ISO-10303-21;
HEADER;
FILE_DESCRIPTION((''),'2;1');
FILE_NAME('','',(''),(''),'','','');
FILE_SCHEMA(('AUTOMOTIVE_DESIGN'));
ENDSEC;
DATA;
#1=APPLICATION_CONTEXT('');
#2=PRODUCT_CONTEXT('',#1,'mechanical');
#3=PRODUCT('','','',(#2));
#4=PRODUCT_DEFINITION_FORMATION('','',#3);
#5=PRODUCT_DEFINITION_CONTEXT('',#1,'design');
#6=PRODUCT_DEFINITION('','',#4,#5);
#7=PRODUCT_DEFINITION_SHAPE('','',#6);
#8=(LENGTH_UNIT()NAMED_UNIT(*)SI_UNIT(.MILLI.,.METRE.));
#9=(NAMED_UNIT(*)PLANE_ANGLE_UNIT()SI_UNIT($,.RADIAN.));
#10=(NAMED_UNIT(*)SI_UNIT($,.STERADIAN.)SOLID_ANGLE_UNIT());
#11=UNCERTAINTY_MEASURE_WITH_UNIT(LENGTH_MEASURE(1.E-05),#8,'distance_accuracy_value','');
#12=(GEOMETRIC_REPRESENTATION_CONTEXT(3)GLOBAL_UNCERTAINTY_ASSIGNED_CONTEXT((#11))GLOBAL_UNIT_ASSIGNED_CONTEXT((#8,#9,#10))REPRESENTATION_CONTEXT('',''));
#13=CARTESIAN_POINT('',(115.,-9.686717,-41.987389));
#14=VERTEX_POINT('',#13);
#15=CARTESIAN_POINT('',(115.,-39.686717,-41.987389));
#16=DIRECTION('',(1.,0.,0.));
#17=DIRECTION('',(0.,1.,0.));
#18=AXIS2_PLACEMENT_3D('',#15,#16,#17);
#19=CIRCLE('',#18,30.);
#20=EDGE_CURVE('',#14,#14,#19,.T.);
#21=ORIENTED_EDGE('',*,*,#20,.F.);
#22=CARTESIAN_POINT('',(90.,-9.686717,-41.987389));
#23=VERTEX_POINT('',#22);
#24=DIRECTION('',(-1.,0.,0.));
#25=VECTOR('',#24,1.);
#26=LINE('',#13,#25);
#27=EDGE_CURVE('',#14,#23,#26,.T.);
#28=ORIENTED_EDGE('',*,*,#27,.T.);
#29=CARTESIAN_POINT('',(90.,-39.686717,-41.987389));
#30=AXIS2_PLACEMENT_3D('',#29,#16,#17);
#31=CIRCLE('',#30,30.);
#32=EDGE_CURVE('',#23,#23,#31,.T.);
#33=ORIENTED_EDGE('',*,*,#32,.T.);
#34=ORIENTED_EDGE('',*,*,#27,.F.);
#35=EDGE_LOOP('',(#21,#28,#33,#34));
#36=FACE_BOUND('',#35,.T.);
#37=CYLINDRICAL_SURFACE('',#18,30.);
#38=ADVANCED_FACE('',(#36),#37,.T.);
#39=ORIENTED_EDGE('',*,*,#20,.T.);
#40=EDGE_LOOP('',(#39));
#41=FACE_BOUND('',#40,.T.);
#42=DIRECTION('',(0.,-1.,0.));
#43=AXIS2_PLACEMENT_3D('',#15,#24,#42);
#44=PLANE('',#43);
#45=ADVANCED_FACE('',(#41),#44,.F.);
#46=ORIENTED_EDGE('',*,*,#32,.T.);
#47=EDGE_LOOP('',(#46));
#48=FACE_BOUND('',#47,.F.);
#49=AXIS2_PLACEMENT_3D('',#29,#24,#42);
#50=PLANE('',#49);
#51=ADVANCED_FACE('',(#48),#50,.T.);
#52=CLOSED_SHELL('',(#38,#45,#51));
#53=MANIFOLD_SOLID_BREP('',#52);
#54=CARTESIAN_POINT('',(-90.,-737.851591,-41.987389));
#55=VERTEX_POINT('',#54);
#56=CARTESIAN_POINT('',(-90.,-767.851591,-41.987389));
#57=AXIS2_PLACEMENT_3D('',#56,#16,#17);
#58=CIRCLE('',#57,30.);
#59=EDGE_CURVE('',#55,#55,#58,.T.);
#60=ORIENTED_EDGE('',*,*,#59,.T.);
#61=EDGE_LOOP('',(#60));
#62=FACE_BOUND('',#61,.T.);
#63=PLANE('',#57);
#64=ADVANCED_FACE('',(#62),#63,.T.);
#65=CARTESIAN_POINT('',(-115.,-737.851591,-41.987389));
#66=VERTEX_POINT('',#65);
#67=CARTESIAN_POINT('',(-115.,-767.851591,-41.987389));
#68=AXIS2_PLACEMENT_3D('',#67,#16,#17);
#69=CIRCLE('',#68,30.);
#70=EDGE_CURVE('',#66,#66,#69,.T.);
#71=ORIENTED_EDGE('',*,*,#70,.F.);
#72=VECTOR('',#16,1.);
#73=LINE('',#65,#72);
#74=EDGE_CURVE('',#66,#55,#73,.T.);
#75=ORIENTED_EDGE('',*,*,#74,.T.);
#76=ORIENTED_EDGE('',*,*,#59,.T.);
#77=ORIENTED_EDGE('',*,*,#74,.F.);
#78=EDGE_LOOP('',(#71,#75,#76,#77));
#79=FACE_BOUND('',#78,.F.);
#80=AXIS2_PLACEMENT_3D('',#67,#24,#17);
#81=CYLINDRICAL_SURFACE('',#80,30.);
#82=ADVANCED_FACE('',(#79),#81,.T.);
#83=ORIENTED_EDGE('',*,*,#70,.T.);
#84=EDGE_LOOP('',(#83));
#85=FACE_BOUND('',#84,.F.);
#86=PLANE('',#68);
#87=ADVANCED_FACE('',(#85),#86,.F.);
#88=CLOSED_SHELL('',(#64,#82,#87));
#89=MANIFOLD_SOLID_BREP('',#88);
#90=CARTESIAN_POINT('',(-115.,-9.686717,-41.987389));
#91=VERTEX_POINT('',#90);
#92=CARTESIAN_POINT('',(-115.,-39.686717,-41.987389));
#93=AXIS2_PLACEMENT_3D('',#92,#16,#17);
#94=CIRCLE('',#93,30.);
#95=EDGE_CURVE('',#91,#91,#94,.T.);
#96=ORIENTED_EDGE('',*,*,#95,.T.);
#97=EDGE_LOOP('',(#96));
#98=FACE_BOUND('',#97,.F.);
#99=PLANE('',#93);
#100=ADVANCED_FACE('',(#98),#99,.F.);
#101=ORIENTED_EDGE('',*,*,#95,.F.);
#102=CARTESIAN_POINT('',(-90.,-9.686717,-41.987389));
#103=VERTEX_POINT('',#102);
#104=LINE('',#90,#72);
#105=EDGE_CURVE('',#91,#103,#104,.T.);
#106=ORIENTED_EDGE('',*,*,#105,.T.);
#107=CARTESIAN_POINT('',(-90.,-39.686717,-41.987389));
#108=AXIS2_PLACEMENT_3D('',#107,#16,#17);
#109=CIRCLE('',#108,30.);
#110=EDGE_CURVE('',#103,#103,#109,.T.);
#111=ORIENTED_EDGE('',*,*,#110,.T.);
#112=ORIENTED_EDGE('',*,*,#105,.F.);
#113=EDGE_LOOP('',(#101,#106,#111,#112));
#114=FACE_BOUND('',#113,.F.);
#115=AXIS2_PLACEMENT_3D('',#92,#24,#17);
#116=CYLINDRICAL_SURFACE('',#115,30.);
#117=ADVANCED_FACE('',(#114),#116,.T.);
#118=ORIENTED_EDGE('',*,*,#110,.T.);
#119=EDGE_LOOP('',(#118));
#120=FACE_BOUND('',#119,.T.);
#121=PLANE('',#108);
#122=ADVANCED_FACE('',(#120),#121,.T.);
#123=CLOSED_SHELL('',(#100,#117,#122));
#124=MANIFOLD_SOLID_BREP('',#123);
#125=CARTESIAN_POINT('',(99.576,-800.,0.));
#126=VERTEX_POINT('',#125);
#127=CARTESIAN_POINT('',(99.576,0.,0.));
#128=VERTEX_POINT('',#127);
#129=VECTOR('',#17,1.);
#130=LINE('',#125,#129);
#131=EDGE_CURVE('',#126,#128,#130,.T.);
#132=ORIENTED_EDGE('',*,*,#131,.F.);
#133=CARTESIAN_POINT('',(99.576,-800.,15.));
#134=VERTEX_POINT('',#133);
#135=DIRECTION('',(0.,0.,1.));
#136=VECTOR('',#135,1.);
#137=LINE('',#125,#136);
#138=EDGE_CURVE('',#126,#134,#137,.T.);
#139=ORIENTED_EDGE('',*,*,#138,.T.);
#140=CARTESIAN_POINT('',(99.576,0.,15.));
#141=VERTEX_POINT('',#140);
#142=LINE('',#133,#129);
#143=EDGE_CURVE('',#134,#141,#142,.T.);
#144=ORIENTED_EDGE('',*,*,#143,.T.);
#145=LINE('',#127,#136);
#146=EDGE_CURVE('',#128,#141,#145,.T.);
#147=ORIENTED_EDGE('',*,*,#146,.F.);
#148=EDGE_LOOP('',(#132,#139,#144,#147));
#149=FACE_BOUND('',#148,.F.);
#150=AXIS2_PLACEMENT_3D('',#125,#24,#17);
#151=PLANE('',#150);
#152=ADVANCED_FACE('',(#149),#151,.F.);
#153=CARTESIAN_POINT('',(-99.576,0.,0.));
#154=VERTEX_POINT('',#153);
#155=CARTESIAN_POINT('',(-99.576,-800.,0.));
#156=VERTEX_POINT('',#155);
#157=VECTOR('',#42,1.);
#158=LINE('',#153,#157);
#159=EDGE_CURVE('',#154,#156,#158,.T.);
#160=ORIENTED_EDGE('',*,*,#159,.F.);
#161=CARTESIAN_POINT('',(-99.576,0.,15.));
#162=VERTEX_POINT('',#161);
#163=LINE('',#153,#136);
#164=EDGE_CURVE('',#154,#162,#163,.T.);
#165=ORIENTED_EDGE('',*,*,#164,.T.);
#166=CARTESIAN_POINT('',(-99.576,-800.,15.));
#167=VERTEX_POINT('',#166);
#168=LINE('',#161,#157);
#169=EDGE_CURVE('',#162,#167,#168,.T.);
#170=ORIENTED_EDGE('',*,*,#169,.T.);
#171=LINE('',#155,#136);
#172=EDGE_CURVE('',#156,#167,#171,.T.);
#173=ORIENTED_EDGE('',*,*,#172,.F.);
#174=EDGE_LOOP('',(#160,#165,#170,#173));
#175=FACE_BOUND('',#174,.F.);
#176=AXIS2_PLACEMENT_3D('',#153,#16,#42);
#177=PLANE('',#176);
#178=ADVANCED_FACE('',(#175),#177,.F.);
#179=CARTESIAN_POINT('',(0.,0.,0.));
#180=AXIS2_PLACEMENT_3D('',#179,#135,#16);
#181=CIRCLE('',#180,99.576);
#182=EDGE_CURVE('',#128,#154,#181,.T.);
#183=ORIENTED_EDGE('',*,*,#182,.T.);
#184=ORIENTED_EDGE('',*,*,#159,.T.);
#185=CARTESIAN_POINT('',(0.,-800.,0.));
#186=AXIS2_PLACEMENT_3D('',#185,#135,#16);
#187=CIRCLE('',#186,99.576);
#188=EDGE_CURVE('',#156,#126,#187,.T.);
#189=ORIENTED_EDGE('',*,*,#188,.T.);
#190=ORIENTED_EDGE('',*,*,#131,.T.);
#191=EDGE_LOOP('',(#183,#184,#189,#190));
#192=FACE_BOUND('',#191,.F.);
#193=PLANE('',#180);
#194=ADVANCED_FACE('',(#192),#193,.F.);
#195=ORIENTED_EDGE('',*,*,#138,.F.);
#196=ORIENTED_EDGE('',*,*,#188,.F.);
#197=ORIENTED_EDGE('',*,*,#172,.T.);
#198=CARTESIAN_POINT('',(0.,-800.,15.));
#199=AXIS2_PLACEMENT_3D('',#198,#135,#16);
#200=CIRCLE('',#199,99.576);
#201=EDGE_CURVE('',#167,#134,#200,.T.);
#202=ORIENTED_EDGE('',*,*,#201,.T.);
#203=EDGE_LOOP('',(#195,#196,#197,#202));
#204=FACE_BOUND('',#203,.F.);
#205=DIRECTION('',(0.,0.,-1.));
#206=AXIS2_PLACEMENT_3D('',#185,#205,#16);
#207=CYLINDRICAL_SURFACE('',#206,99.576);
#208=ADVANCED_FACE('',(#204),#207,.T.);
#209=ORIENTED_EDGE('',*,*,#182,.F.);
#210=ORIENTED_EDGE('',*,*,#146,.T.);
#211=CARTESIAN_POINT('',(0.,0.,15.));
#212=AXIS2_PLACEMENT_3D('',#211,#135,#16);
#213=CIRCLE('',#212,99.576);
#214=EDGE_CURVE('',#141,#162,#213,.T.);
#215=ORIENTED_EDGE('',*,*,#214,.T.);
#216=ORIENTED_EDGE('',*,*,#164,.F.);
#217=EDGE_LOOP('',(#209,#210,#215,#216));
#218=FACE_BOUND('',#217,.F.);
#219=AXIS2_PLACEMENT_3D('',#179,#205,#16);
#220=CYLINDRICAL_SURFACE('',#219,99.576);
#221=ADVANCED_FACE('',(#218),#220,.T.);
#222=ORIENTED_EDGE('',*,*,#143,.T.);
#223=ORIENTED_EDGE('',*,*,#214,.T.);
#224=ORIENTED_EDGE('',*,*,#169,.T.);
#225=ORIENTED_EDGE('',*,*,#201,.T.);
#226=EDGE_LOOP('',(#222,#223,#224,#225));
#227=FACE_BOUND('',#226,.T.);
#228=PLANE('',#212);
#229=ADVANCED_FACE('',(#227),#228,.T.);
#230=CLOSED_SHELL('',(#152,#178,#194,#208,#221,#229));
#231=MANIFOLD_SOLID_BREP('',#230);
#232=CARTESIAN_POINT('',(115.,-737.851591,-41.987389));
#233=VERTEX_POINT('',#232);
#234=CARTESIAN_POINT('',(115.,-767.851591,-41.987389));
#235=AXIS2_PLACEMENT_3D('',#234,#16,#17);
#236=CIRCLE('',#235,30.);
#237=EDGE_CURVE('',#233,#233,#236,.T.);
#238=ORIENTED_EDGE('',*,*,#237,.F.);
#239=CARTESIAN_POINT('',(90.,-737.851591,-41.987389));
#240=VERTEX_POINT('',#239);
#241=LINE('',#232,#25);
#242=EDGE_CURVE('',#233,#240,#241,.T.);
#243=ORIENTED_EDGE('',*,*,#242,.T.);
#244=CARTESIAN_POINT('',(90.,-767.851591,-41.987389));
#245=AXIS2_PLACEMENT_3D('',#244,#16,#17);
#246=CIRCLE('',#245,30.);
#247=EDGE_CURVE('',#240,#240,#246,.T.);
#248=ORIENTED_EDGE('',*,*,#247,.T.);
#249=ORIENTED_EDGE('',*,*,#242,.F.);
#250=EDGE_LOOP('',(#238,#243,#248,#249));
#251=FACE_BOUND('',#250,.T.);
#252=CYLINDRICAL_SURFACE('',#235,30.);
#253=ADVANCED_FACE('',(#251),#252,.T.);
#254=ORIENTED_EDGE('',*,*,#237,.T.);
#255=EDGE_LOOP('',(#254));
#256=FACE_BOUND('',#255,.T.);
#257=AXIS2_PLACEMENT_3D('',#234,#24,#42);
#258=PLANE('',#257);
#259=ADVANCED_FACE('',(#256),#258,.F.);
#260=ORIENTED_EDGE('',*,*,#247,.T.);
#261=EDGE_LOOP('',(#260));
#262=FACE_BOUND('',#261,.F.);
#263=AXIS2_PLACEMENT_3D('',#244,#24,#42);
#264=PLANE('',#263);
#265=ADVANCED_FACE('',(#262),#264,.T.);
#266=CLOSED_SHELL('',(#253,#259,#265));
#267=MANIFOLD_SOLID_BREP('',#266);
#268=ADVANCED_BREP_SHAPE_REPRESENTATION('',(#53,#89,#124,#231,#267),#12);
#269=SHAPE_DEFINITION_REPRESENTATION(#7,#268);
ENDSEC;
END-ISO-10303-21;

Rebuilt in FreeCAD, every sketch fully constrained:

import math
import FreeCAD as App
import Part
import Sketcher
from FreeCAD import Vector
Q = App.Units.Quantity

doc = App.newDocument("Part")
params = doc.addObject("Spreadsheet::Sheet", "Params")
for row, (alias, value) in enumerate([
    ("sketch1_height", "800 mm"),
    ("pad1_length", "15 mm"),
    ("sketch2_diameter", "60 mm"),
    ("pad2_length", "25 mm"),
], start=1):
    params.set(f"A{row}", alias)
    params.set(f"B{row}", "=" + value)
    params.setAlias(f"B{row}", alias)

body = doc.addObject("PartDesign::Body", "Body")

# Sketch on XY plane
sketch1 = doc.addObject("Sketcher::SketchObject", "Sketch")
body.addObject(sketch1)
sketch1.AttachmentSupport = (doc.XY_Plane, [""])
sketch1.MapMode = "FlatFace"
sketch1.addGeometry(Part.ArcOfCircle(Part.Circle(Vector(0, 0, 0), Vector(0, 0, 1), 99.576), math.radians(0), math.radians(180)), False)
sketch1.addGeometry(Part.LineSegment(Vector(-99.576, 0, 0), Vector(-99.576, -800, 0)), False)
sketch1.addGeometry(Part.ArcOfCircle(Part.Circle(Vector(0, -800, 0), Vector(0, 0, 1), 99.576), math.radians(180), math.radians(360)), False)
sketch1.addGeometry(Part.LineSegment(Vector(99.576, -800, 0), Vector(99.576, 0, 0)), False)
sketch1.addConstraint(Sketcher.Constraint("Tangent", 0, 2, 1, 1))
sketch1.addConstraint(Sketcher.Constraint("Tangent", 1, 2, 2, 1))
sketch1.addConstraint(Sketcher.Constraint("Tangent", 2, 2, 3, 1))
sketch1.addConstraint(Sketcher.Constraint("Tangent", 3, 2, 0, 1))
sketch1.addConstraint(Sketcher.Constraint("Vertical", 1))
sketch1.addConstraint(Sketcher.Constraint("Vertical", 3))
sketch1.addConstraint(Sketcher.Constraint("Coincident", 0, 3, -1, 1))
sketch1.addConstraint(Sketcher.Constraint("DistanceY", 1, 2, 1, 1, Q("800 mm")))
sketch1.addConstraint(Sketcher.Constraint("Radius", 0, Q("99.576 mm")))
sketch1.setExpression("Constraints[7]", "Params.sketch1_height")
pad1 = doc.addObject("PartDesign::Pad", "Pad")
body.addObject(pad1)
pad1.Profile = sketch1
pad1.setExpression("Length", "Params.pad1_length")
body2 = doc.addObject("PartDesign::Body", "Body001")
body2.AllowCompound = True

# Sketch on YZ plane
sketch2 = doc.addObject("Sketcher::SketchObject", "Sketch001")
body2.addObject(sketch2)
sketch2.AttachmentSupport = (doc.getObject("YZ_Plane001"), [""])
sketch2.MapMode = "FlatFace"
sketch2.AttachmentOffset = App.Placement(Vector(0, 0, -115), App.Rotation())
sketch2.addGeometry(Part.Circle(Vector(-39.686717, -41.987389, 0), Vector(0, 0, 1), 30), False)
sketch2.addGeometry(Part.Circle(Vector(-767.851591, -41.987389, 0), Vector(0, 0, 1), 30), False)
sketch2.addConstraint(Sketcher.Constraint("Equal", 0, 1))
sketch2.addConstraint(Sketcher.Constraint("Horizontal", 0, 3, 1, 3))
sketch2.addConstraint(Sketcher.Constraint("Diameter", 0, Q("60 mm")))
sketch2.addConstraint(Sketcher.Constraint("DistanceY", 0, 3, -1, 1, Q("41.987389 mm")))
sketch2.addConstraint(Sketcher.Constraint("DistanceX", 1, 3, -1, 1, Q("767.851591 mm")))
sketch2.addConstraint(Sketcher.Constraint("DistanceX", 0, 3, -1, 1, Q("39.686717 mm")))
sketch2.setExpression("Constraints[2]", "Params.sketch2_diameter")
pad2 = doc.addObject("PartDesign::Pad", "Pad001")
body2.addObject(pad2)
pad2.Profile = sketch2
pad2.setExpression("Length", "Params.pad2_length")
body3 = doc.addObject("PartDesign::Body", "Body002")
body3.AllowCompound = True
doc.recompute()

mirroring = doc.addObject("Part::Mirroring", "Mirroring")
mirroring.Source = body2
mirroring.Base = Vector(0, 0, 0)
mirroring.Normal = Vector(1, 0, 0)
body3.BaseFeature = mirroring
doc.recompute()
mirroring.Visibility = False

doc.recompute()
